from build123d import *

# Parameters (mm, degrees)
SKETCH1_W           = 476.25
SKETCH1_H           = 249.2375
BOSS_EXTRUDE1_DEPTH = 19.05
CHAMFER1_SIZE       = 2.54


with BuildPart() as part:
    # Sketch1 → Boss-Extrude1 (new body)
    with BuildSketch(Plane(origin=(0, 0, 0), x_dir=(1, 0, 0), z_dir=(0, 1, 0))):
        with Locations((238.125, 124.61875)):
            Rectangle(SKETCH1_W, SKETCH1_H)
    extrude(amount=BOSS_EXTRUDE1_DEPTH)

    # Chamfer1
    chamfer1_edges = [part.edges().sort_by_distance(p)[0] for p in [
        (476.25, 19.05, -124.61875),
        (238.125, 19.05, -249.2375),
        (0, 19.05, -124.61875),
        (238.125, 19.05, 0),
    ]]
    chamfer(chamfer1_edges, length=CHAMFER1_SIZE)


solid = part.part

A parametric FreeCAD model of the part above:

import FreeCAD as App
import Part
import Sketcher

V = App.Vector
Q = App.Units.Quantity


def edges_at(feature, points):
    """Names of the edges that pass closest to the given points."""
    edges = feature.Shape.Edges
    near = lambda p: min(range(len(edges)), key=lambda i: edges[i].distToShape(Part.Vertex(*p))[0])
    return sorted({f"Edge{near(p) + 1}" for p in points})


def add_polygon(sketch, points):
    """Adds a closed chain of lines whose ends are joined by coincident constraints."""
    first, n = sketch.GeometryCount, len(points)
    for a, b in zip(points, points[1:] + points[:1]):
        sketch.addGeometry(Part.LineSegment(App.Vector(*a, 0), App.Vector(*b, 0)), False)
    for i in range(n):
        sketch.addConstraint(Sketcher.Constraint("Coincident", first + i, 2, first + (i + 1) % n, 1))

doc = App.newDocument("Part")
body = doc.addObject("PartDesign::Body", "Body")

# Sketch on XZ plane
sketch1 = body.newObject("Sketcher::SketchObject", "Sketch")
sketch1.AttachmentSupport = (doc.getObject("XZ_Plane"), [""])
sketch1.MapMode = "FlatFace"
add_polygon(sketch1, [(0, -249.2375), (0, 0), (476.25, 0), (476.25, -249.2375)])  # lines 0-3
sketch1.addConstraint(Sketcher.Constraint("Vertical", 0))
sketch1.addConstraint(Sketcher.Constraint("Horizontal", 1))
sketch1.addConstraint(Sketcher.Constraint("Vertical", 2))
sketch1.addConstraint(Sketcher.Constraint("Horizontal", 3))
sketch1.addConstraint(Sketcher.Constraint("Coincident", 0, 2, -1, 1))
sketch1.addConstraint(Sketcher.Constraint("DistanceX", 1, 1, 1, 2, Q("18.75 in")))
sketch1.addConstraint(Sketcher.Constraint("DistanceY", 0, 1, 0, 2, Q("9.8125 in")))
pad1 = body.newObject("PartDesign::Pad", "Pad")
pad1.Profile = sketch1
pad1.Length = Q("0.75 in")
pad1.Reversed = True
doc.recompute()

chamfer = body.newObject("PartDesign::Chamfer", "Chamfer")
chamfer.Base = (pad1, edges_at(pad1, [
    (476.25, 19.05, -124.619),
    (238.125, 19.05, -249.238),
    (0, 19.05, -124.619),
    (238.125, 19.05, 0),
]))
chamfer.Size = Q("0.1 in")

doc.recompute()
